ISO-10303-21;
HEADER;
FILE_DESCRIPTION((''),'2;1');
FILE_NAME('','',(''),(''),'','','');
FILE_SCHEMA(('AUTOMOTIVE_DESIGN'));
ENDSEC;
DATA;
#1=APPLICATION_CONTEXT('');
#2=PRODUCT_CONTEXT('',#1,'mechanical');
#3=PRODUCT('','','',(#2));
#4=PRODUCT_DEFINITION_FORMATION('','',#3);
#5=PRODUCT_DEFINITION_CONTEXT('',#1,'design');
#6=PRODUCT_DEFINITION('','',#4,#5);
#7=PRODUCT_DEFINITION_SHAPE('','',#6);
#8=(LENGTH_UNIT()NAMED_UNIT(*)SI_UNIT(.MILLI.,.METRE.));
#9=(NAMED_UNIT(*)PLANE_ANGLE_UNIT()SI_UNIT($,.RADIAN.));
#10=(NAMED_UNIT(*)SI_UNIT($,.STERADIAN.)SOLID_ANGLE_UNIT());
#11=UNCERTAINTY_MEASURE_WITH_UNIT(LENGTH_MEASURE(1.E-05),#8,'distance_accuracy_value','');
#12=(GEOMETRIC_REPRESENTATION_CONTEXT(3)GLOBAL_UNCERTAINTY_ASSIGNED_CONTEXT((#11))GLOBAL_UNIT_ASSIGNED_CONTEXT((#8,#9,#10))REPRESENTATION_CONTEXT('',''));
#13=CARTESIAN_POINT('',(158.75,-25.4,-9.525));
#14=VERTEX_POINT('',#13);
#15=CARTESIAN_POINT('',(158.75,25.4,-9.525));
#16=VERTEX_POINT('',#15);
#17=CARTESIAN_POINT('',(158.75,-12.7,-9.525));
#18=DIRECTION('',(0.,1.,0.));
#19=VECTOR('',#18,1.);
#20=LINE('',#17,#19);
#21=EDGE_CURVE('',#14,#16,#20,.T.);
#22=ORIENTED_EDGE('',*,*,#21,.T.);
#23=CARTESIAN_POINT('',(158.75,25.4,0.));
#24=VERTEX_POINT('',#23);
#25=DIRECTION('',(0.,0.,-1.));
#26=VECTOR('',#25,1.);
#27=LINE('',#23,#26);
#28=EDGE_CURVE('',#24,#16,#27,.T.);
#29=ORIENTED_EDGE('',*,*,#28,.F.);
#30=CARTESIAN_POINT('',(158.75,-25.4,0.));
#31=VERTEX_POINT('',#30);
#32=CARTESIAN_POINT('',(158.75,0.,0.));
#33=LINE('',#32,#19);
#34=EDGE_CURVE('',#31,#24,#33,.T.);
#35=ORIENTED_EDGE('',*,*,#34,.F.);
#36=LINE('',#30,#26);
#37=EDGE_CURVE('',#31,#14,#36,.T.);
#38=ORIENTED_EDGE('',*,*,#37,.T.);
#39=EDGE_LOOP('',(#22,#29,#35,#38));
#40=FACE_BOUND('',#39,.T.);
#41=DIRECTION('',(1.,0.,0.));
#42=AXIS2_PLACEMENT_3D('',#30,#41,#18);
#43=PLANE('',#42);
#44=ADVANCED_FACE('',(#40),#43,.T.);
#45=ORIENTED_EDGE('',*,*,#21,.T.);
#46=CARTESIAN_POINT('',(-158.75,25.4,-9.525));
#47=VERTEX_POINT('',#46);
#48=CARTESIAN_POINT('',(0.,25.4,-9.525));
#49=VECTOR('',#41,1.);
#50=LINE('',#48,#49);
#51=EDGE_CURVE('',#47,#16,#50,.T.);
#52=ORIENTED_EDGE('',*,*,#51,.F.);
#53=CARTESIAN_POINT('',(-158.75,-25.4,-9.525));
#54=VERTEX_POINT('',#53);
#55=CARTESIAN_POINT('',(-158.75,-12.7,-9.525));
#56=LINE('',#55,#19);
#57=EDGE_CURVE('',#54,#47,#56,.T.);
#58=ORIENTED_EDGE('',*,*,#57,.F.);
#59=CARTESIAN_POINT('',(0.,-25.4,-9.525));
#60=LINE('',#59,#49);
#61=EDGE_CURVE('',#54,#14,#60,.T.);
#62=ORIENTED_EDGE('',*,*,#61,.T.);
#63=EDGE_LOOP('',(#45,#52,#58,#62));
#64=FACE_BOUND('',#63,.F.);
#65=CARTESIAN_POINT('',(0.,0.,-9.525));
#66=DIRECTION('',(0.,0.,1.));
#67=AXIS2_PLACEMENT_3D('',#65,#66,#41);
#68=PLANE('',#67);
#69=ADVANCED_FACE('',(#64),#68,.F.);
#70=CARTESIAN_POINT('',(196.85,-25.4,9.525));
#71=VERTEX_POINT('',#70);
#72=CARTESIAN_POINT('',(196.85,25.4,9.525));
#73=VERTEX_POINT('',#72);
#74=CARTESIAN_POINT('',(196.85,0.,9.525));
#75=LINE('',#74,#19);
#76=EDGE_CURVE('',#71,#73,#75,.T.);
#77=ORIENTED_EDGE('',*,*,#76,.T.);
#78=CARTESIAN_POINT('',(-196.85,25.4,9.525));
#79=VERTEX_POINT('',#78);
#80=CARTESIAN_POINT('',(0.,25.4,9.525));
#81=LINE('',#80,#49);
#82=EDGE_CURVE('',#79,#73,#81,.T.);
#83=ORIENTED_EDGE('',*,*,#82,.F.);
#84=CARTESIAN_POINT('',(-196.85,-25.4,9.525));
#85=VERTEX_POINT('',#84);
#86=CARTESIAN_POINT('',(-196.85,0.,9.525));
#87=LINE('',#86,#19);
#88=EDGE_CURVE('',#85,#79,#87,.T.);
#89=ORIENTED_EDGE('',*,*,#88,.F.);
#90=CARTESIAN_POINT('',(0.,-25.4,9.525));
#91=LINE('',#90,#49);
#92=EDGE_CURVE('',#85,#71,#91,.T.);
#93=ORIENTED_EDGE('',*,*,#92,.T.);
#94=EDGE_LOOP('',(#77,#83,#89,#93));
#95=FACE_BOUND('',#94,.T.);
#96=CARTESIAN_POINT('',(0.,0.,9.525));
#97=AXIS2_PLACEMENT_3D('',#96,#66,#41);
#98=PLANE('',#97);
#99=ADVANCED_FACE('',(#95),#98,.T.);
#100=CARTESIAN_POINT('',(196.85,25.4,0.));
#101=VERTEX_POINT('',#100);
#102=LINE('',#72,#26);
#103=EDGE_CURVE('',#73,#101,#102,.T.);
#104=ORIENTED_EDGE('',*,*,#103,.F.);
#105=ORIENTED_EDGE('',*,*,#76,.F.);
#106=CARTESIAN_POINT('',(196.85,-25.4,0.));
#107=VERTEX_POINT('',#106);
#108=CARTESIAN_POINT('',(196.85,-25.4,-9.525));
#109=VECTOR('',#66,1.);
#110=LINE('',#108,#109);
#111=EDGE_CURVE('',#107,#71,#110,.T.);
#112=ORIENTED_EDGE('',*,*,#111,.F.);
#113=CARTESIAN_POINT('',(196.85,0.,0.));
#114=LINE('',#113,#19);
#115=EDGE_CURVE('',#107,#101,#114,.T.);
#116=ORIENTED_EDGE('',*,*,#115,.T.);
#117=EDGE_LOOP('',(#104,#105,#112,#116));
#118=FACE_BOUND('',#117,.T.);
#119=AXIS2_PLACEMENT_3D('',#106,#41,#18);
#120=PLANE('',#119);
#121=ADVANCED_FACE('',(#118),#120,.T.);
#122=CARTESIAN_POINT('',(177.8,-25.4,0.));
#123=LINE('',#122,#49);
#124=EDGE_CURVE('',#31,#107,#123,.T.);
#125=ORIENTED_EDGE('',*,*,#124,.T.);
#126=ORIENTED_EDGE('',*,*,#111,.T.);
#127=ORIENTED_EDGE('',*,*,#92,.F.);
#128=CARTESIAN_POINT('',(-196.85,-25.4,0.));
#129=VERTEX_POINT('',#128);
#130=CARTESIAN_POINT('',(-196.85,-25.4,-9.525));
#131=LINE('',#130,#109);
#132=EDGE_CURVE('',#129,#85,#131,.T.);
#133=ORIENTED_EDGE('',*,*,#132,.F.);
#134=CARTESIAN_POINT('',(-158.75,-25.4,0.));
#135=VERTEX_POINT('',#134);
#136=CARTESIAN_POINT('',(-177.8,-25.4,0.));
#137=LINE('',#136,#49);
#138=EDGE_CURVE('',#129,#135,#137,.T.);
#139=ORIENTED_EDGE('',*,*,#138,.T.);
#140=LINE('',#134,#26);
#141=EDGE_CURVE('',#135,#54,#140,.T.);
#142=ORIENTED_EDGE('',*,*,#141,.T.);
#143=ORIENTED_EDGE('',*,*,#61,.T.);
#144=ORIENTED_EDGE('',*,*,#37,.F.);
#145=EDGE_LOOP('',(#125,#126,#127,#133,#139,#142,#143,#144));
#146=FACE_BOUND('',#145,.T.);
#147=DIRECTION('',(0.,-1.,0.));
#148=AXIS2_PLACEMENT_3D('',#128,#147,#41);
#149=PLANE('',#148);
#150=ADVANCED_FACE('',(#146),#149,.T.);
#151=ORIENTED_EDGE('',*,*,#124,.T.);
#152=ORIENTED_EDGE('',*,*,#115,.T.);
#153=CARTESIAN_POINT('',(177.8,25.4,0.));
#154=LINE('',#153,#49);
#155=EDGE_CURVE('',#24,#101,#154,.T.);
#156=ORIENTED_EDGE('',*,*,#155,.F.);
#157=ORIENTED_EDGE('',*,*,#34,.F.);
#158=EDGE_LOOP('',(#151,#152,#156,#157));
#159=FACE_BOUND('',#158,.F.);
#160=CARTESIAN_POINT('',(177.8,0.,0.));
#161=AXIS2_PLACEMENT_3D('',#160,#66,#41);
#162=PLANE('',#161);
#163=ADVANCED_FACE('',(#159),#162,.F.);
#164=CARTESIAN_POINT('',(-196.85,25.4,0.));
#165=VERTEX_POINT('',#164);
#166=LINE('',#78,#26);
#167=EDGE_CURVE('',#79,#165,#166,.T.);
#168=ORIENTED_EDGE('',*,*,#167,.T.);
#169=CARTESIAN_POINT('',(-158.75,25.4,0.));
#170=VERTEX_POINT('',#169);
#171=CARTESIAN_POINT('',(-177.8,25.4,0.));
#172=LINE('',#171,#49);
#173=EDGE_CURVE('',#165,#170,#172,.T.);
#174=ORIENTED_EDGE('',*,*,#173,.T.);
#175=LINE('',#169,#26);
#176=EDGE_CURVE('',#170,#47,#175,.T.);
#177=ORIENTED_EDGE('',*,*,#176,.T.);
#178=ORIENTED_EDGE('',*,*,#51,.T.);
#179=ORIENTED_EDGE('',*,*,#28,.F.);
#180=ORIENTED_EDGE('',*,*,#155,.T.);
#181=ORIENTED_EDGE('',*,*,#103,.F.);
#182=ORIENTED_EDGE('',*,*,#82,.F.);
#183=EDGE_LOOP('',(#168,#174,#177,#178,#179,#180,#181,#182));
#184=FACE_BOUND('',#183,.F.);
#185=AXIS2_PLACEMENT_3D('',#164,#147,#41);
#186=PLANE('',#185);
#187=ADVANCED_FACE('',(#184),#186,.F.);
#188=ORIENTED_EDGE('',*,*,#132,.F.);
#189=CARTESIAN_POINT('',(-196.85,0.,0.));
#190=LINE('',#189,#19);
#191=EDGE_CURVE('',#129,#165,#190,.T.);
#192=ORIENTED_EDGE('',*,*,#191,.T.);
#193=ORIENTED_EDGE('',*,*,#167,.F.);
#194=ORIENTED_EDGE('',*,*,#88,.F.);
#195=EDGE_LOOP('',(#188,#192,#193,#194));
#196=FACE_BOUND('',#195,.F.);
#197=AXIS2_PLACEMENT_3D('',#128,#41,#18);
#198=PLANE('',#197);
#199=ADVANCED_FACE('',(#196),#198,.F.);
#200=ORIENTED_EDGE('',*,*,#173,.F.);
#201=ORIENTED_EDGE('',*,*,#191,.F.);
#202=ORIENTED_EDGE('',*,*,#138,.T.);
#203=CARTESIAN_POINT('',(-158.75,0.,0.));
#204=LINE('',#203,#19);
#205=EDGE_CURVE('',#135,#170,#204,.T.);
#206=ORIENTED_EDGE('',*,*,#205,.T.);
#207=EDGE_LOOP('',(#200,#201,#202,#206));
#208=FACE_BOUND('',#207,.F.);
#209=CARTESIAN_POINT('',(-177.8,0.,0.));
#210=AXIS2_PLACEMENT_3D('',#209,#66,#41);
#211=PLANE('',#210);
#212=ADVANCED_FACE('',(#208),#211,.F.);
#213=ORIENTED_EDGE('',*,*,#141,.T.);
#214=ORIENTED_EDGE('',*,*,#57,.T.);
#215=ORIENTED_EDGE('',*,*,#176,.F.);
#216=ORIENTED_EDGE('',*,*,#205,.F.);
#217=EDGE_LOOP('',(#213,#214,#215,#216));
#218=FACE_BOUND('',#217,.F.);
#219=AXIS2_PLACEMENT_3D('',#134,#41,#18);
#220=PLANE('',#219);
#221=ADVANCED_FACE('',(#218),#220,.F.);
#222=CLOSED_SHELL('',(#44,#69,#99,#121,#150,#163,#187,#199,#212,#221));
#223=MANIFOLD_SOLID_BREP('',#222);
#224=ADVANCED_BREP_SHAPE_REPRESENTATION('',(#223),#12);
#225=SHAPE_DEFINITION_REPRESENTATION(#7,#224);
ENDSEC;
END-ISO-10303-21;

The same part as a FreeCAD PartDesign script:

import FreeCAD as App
import Part
import Sketcher
from FreeCAD import Vector
Q = App.Units.Quantity


def add_polygon(sketch, points):
    """Adds a closed chain of lines whose ends are joined by coincident constraints."""
    first, n = sketch.GeometryCount, len(points)
    for a, b in zip(points, points[1:] + points[:1]):
        sketch.addGeometry(Part.LineSegment(App.Vector(*a, 0), App.Vector(*b, 0)), False)
    for i in range(n):
        sketch.addConstraint(Sketcher.Constraint("Coincident", first + i, 2, first + (i + 1) % n, 1))

doc = App.newDocument("Part")
body = doc.addObject("PartDesign::Body", "Body")

sketch1 = body.newObject("Sketcher::SketchObject", "Sketch")
sketch1.AttachmentSupport = (doc.getObject("XY_Plane"), [""])
sketch1.MapMode = "FlatFace"
add_polygon(sketch1, [(-197, 25), (-197, -25), (197, -25), (197, 25)])
sketch1.addConstraint(Sketcher.Constraint("Vertical", 0))
sketch1.addConstraint(Sketcher.Constraint("Horizontal", 1))
sketch1.addConstraint(Sketcher.Constraint("Vertical", 2))
sketch1.addConstraint(Sketcher.Constraint("Horizontal", 3))
sketch1.addConstraint(Sketcher.Constraint("Symmetric", 0, 2, 2, 2, -1, 1))
sketch1.addConstraint(Sketcher.Constraint("DistanceY", 0, 2, 0, 1, Q("2 in")))
sketch1.addConstraint(Sketcher.Constraint("DistanceX", 1, 1, 1, 2, Q("15.5 in")))
pad1 = body.newObject("PartDesign::Pad", "Pad")
pad1.Profile = sketch1
pad1.Length = Q("0.75 in")
pad1.Midplane = True

sketch2 = body.newObject("Sketcher::SketchObject", "Sketch001")
sketch2.AttachmentSupport = (doc.getObject("XY_Plane"), [""])
sketch2.MapMode = "FlatFace"
add_polygon(sketch2, [(-197, 25), (-197, -25), (-159, -25), (-159, 25)])
add_polygon(sketch2, [(159, 25), (159, -25), (197, -25), (197, 25)])
sketch2.addConstraint(Sketcher.Constraint("Vertical", 0))
sketch2.addConstraint(Sketcher.Constraint("Horizontal", 1))
sketch2.addConstraint(Sketcher.Constraint("Vertical", 2))
sketch2.addConstraint(Sketcher.Constraint("Horizontal", 3))
sketch2.addConstraint(Sketcher.Constraint("Vertical", 4))
sketch2.addConstraint(Sketcher.Constraint("Horizontal", 5))
sketch2.addConstraint(Sketcher.Constraint("Vertical", 6))
sketch2.addConstraint(Sketcher.Constraint("Horizontal", 7))
sketch2.addConstraint(Sketcher.Constraint("Symmetric", 2, 2, 4, 2, -1, 1))
sketch2.addConstraint(Sketcher.Constraint("Symmetric", 0, 2, 6, 2, -1, 1))
sketch2.addConstraint(Sketcher.Constraint("Horizontal", 1, 2, 4, 2))
sketch2.addConstraint(Sketcher.Constraint("DistanceY", 0, 2, 0, 1, Q("2 in")))
sketch2.addConstraint(Sketcher.Constraint("DistanceX", 1, 1, 1, 2, Q("1.5 in")))
sketch2.addConstraint(Sketcher.Constraint("DistanceX", 0, 2, 4, 2, Q("14 in")))
pocket1 = body.newObject("PartDesign::Pocket", "Pocket")
pocket1.Profile = sketch2
pocket1.Type = "ThroughAll"

doc.recompute()
